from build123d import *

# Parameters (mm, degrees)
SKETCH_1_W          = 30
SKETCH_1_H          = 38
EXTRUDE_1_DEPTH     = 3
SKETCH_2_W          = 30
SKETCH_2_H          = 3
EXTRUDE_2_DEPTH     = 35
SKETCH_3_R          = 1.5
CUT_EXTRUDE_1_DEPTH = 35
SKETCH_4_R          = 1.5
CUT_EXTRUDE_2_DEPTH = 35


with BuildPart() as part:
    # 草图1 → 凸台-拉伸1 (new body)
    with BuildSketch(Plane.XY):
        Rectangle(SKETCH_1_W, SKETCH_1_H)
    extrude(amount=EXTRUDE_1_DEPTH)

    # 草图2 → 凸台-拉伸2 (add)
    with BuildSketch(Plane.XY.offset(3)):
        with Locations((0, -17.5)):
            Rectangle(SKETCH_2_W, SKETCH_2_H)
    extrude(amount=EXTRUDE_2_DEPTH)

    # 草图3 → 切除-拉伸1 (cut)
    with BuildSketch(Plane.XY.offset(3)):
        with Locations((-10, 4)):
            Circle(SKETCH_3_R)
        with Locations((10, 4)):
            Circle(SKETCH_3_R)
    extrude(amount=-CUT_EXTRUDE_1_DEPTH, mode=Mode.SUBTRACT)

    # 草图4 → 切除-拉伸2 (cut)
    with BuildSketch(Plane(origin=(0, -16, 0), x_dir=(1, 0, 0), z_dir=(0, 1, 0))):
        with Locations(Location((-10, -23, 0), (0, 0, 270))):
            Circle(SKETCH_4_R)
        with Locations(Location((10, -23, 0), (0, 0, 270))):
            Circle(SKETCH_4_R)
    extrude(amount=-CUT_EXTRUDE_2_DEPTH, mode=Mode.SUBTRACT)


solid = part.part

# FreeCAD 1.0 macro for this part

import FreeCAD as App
import Part
import Sketcher
from FreeCAD import Vector


def add_polygon(sketch, points):
    """Adds a closed chain of lines whose ends are joined by coincident constraints."""
    first, n = sketch.GeometryCount, len(points)
    for a, b in zip(points, points[1:] + points[:1]):
        sketch.addGeometry(Part.LineSegment(App.Vector(*a, 0), App.Vector(*b, 0)), False)
    for i in range(n):
        sketch.addConstraint(Sketcher.Constraint("Coincident", first + i, 2, first + (i + 1) % n, 1))

doc = App.newDocument("Part")
body = doc.addObject("PartDesign::Body", "Body")

# Sketch on XY plane
sketch1 = doc.addObject("Sketcher::SketchObject", "Sketch")
body.addObject(sketch1)
sketch1.AttachmentSupport = (doc.XY_Plane, [""])
sketch1.MapMode = "FlatFace"
add_polygon(sketch1, [(-15, 19), (-15, -19), (15, -19), (15, 19)])  # lines 0-3
sketch1.addConstraint(Sketcher.Constraint("Vertical", 0))
sketch1.addConstraint(Sketcher.Constraint("Horizontal", 1))
sketch1.addConstraint(Sketcher.Constraint("Vertical", 2))
sketch1.addConstraint(Sketcher.Constraint("Horizontal", 3))
sketch1.addConstraint(Sketcher.Constraint("Symmetric", 0, 2, 2, 2, -1, 1))
sketch1.addConstraint(Sketcher.Constraint("DistanceX", 1, 1, 1, 2, 30.0))
sketch1.addConstraint(Sketcher.Constraint("DistanceY", 0, 2, 0, 1, 38.0))
pad1 = doc.addObject("PartDesign::Pad", "Pad")
body.addObject(pad1)
pad1.Profile = sketch1
pad1.Length = 3

# Sketch on XY plane
sketch2 = doc.addObject("Sketcher::SketchObject", "Sketch001")
body.addObject(sketch2)
sketch2.AttachmentSupport = (doc.XY_Plane, [""])
sketch2.MapMode = "FlatFace"
sketch2.AttachmentOffset = App.Placement(Vector(0, 0, 3), App.Rotation())
add_polygon(sketch2, [(-15, -16), (-15, -19), (15, -19), (15, -16)])  # lines 0-3
sketch2.addConstraint(Sketcher.Constraint("Vertical", 0))
sketch2.addConstraint(Sketcher.Constraint("Horizontal", 1))
sketch2.addConstraint(Sketcher.Constraint("Vertical", 2))
sketch2.addConstraint(Sketcher.Constraint("Horizontal", 3))
sketch2.addConstraint(Sketcher.Constraint("DistanceX", 1, 1, 1, 2, 30.0))
sketch2.addConstraint(Sketcher.Constraint("DistanceY", 0, 2, 0, 1, 3.0))
sketch2.addConstraint(Sketcher.Constraint("DistanceX", 0, 2, -1, 1, 15.0))
sketch2.addConstraint(Sketcher.Constraint("DistanceY", 0, 2, -1, 1, 19.0))
pad2 = doc.addObject("PartDesign::Pad", "Pad001")
body.addObject(pad2)
pad2.Profile = sketch2
pad2.Length = 35

# Sketch on XY plane
sketch3 = doc.addObject("Sketcher::SketchObject", "Sketch002")
body.addObject(sketch3)
sketch3.AttachmentSupport = (doc.XY_Plane, [""])
sketch3.MapMode = "FlatFace"
sketch3.AttachmentOffset = App.Placement(Vector(0, 0, 3), App.Rotation())
sketch3.addGeometry(Part.Circle(Vector(-10, 4, 0), Vector(0, 0, 1), 1.5), False)
sketch3.addGeometry(Part.Circle(Vector(10, 4, 0), Vector(0, 0, 1), 1.5), False)
sketch3.addConstraint(Sketcher.Constraint("Equal", 0, 1))
sketch3.addConstraint(Sketcher.Constraint("Symmetric", 0, 3, 1, 3, -2))
sketch3.addConstraint(Sketcher.Constraint("Diameter", 0, 3.0))
sketch3.addConstraint(Sketcher.Constraint("DistanceX", 0, 3, -1, 1, 10.0))
sketch3.addConstraint(Sketcher.Constraint("DistanceY", -1, 1, 0, 3, 4.0))
pocket1 = doc.addObject("PartDesign::Pocket", "Pocket")
body.addObject(pocket1)
pocket1.Profile = sketch3
pocket1.Length = 35

# Sketch on XZ plane
sketch4 = doc.addObject("Sketcher::SketchObject", "Sketch003")
body.addObject(sketch4)
sketch4.AttachmentSupport = (doc.XZ_Plane, [""])
sketch4.MapMode = "FlatFace"
sketch4.AttachmentOffset = App.Placement(Vector(0, 0, 16), App.Rotation())
sketch4.addGeometry(Part.Circle(Vector(-10, 23, 0), Vector(0, 0, 1), 1.5), False)
sketch4.addGeometry(Part.Circle(Vector(10, 23, 0), Vector(0, 0, 1), 1.5), False)
sketch4.addConstraint(Sketcher.Constraint("Equal", 0, 1))
sketch4.addConstraint(Sketcher.Constraint("Symmetric", 0, 3, 1, 3, -2))
sketch4.addConstraint(Sketcher.Constraint("Diameter", 0, 3.0))
sketch4.addConstraint(Sketcher.Constraint("DistanceX", 0, 3, -1, 1, 10.0))
sketch4.addConstraint(Sketcher.Constraint("DistanceY", -1, 1, 0, 3, 23.0))
pocket2 = doc.addObject("PartDesign::Pocket", "Pocket001")
body.addObject(pocket2)
pocket2.Profile = sketch4
pocket2.Length = 35
pocket2.Reversed = True

doc.recompute()
